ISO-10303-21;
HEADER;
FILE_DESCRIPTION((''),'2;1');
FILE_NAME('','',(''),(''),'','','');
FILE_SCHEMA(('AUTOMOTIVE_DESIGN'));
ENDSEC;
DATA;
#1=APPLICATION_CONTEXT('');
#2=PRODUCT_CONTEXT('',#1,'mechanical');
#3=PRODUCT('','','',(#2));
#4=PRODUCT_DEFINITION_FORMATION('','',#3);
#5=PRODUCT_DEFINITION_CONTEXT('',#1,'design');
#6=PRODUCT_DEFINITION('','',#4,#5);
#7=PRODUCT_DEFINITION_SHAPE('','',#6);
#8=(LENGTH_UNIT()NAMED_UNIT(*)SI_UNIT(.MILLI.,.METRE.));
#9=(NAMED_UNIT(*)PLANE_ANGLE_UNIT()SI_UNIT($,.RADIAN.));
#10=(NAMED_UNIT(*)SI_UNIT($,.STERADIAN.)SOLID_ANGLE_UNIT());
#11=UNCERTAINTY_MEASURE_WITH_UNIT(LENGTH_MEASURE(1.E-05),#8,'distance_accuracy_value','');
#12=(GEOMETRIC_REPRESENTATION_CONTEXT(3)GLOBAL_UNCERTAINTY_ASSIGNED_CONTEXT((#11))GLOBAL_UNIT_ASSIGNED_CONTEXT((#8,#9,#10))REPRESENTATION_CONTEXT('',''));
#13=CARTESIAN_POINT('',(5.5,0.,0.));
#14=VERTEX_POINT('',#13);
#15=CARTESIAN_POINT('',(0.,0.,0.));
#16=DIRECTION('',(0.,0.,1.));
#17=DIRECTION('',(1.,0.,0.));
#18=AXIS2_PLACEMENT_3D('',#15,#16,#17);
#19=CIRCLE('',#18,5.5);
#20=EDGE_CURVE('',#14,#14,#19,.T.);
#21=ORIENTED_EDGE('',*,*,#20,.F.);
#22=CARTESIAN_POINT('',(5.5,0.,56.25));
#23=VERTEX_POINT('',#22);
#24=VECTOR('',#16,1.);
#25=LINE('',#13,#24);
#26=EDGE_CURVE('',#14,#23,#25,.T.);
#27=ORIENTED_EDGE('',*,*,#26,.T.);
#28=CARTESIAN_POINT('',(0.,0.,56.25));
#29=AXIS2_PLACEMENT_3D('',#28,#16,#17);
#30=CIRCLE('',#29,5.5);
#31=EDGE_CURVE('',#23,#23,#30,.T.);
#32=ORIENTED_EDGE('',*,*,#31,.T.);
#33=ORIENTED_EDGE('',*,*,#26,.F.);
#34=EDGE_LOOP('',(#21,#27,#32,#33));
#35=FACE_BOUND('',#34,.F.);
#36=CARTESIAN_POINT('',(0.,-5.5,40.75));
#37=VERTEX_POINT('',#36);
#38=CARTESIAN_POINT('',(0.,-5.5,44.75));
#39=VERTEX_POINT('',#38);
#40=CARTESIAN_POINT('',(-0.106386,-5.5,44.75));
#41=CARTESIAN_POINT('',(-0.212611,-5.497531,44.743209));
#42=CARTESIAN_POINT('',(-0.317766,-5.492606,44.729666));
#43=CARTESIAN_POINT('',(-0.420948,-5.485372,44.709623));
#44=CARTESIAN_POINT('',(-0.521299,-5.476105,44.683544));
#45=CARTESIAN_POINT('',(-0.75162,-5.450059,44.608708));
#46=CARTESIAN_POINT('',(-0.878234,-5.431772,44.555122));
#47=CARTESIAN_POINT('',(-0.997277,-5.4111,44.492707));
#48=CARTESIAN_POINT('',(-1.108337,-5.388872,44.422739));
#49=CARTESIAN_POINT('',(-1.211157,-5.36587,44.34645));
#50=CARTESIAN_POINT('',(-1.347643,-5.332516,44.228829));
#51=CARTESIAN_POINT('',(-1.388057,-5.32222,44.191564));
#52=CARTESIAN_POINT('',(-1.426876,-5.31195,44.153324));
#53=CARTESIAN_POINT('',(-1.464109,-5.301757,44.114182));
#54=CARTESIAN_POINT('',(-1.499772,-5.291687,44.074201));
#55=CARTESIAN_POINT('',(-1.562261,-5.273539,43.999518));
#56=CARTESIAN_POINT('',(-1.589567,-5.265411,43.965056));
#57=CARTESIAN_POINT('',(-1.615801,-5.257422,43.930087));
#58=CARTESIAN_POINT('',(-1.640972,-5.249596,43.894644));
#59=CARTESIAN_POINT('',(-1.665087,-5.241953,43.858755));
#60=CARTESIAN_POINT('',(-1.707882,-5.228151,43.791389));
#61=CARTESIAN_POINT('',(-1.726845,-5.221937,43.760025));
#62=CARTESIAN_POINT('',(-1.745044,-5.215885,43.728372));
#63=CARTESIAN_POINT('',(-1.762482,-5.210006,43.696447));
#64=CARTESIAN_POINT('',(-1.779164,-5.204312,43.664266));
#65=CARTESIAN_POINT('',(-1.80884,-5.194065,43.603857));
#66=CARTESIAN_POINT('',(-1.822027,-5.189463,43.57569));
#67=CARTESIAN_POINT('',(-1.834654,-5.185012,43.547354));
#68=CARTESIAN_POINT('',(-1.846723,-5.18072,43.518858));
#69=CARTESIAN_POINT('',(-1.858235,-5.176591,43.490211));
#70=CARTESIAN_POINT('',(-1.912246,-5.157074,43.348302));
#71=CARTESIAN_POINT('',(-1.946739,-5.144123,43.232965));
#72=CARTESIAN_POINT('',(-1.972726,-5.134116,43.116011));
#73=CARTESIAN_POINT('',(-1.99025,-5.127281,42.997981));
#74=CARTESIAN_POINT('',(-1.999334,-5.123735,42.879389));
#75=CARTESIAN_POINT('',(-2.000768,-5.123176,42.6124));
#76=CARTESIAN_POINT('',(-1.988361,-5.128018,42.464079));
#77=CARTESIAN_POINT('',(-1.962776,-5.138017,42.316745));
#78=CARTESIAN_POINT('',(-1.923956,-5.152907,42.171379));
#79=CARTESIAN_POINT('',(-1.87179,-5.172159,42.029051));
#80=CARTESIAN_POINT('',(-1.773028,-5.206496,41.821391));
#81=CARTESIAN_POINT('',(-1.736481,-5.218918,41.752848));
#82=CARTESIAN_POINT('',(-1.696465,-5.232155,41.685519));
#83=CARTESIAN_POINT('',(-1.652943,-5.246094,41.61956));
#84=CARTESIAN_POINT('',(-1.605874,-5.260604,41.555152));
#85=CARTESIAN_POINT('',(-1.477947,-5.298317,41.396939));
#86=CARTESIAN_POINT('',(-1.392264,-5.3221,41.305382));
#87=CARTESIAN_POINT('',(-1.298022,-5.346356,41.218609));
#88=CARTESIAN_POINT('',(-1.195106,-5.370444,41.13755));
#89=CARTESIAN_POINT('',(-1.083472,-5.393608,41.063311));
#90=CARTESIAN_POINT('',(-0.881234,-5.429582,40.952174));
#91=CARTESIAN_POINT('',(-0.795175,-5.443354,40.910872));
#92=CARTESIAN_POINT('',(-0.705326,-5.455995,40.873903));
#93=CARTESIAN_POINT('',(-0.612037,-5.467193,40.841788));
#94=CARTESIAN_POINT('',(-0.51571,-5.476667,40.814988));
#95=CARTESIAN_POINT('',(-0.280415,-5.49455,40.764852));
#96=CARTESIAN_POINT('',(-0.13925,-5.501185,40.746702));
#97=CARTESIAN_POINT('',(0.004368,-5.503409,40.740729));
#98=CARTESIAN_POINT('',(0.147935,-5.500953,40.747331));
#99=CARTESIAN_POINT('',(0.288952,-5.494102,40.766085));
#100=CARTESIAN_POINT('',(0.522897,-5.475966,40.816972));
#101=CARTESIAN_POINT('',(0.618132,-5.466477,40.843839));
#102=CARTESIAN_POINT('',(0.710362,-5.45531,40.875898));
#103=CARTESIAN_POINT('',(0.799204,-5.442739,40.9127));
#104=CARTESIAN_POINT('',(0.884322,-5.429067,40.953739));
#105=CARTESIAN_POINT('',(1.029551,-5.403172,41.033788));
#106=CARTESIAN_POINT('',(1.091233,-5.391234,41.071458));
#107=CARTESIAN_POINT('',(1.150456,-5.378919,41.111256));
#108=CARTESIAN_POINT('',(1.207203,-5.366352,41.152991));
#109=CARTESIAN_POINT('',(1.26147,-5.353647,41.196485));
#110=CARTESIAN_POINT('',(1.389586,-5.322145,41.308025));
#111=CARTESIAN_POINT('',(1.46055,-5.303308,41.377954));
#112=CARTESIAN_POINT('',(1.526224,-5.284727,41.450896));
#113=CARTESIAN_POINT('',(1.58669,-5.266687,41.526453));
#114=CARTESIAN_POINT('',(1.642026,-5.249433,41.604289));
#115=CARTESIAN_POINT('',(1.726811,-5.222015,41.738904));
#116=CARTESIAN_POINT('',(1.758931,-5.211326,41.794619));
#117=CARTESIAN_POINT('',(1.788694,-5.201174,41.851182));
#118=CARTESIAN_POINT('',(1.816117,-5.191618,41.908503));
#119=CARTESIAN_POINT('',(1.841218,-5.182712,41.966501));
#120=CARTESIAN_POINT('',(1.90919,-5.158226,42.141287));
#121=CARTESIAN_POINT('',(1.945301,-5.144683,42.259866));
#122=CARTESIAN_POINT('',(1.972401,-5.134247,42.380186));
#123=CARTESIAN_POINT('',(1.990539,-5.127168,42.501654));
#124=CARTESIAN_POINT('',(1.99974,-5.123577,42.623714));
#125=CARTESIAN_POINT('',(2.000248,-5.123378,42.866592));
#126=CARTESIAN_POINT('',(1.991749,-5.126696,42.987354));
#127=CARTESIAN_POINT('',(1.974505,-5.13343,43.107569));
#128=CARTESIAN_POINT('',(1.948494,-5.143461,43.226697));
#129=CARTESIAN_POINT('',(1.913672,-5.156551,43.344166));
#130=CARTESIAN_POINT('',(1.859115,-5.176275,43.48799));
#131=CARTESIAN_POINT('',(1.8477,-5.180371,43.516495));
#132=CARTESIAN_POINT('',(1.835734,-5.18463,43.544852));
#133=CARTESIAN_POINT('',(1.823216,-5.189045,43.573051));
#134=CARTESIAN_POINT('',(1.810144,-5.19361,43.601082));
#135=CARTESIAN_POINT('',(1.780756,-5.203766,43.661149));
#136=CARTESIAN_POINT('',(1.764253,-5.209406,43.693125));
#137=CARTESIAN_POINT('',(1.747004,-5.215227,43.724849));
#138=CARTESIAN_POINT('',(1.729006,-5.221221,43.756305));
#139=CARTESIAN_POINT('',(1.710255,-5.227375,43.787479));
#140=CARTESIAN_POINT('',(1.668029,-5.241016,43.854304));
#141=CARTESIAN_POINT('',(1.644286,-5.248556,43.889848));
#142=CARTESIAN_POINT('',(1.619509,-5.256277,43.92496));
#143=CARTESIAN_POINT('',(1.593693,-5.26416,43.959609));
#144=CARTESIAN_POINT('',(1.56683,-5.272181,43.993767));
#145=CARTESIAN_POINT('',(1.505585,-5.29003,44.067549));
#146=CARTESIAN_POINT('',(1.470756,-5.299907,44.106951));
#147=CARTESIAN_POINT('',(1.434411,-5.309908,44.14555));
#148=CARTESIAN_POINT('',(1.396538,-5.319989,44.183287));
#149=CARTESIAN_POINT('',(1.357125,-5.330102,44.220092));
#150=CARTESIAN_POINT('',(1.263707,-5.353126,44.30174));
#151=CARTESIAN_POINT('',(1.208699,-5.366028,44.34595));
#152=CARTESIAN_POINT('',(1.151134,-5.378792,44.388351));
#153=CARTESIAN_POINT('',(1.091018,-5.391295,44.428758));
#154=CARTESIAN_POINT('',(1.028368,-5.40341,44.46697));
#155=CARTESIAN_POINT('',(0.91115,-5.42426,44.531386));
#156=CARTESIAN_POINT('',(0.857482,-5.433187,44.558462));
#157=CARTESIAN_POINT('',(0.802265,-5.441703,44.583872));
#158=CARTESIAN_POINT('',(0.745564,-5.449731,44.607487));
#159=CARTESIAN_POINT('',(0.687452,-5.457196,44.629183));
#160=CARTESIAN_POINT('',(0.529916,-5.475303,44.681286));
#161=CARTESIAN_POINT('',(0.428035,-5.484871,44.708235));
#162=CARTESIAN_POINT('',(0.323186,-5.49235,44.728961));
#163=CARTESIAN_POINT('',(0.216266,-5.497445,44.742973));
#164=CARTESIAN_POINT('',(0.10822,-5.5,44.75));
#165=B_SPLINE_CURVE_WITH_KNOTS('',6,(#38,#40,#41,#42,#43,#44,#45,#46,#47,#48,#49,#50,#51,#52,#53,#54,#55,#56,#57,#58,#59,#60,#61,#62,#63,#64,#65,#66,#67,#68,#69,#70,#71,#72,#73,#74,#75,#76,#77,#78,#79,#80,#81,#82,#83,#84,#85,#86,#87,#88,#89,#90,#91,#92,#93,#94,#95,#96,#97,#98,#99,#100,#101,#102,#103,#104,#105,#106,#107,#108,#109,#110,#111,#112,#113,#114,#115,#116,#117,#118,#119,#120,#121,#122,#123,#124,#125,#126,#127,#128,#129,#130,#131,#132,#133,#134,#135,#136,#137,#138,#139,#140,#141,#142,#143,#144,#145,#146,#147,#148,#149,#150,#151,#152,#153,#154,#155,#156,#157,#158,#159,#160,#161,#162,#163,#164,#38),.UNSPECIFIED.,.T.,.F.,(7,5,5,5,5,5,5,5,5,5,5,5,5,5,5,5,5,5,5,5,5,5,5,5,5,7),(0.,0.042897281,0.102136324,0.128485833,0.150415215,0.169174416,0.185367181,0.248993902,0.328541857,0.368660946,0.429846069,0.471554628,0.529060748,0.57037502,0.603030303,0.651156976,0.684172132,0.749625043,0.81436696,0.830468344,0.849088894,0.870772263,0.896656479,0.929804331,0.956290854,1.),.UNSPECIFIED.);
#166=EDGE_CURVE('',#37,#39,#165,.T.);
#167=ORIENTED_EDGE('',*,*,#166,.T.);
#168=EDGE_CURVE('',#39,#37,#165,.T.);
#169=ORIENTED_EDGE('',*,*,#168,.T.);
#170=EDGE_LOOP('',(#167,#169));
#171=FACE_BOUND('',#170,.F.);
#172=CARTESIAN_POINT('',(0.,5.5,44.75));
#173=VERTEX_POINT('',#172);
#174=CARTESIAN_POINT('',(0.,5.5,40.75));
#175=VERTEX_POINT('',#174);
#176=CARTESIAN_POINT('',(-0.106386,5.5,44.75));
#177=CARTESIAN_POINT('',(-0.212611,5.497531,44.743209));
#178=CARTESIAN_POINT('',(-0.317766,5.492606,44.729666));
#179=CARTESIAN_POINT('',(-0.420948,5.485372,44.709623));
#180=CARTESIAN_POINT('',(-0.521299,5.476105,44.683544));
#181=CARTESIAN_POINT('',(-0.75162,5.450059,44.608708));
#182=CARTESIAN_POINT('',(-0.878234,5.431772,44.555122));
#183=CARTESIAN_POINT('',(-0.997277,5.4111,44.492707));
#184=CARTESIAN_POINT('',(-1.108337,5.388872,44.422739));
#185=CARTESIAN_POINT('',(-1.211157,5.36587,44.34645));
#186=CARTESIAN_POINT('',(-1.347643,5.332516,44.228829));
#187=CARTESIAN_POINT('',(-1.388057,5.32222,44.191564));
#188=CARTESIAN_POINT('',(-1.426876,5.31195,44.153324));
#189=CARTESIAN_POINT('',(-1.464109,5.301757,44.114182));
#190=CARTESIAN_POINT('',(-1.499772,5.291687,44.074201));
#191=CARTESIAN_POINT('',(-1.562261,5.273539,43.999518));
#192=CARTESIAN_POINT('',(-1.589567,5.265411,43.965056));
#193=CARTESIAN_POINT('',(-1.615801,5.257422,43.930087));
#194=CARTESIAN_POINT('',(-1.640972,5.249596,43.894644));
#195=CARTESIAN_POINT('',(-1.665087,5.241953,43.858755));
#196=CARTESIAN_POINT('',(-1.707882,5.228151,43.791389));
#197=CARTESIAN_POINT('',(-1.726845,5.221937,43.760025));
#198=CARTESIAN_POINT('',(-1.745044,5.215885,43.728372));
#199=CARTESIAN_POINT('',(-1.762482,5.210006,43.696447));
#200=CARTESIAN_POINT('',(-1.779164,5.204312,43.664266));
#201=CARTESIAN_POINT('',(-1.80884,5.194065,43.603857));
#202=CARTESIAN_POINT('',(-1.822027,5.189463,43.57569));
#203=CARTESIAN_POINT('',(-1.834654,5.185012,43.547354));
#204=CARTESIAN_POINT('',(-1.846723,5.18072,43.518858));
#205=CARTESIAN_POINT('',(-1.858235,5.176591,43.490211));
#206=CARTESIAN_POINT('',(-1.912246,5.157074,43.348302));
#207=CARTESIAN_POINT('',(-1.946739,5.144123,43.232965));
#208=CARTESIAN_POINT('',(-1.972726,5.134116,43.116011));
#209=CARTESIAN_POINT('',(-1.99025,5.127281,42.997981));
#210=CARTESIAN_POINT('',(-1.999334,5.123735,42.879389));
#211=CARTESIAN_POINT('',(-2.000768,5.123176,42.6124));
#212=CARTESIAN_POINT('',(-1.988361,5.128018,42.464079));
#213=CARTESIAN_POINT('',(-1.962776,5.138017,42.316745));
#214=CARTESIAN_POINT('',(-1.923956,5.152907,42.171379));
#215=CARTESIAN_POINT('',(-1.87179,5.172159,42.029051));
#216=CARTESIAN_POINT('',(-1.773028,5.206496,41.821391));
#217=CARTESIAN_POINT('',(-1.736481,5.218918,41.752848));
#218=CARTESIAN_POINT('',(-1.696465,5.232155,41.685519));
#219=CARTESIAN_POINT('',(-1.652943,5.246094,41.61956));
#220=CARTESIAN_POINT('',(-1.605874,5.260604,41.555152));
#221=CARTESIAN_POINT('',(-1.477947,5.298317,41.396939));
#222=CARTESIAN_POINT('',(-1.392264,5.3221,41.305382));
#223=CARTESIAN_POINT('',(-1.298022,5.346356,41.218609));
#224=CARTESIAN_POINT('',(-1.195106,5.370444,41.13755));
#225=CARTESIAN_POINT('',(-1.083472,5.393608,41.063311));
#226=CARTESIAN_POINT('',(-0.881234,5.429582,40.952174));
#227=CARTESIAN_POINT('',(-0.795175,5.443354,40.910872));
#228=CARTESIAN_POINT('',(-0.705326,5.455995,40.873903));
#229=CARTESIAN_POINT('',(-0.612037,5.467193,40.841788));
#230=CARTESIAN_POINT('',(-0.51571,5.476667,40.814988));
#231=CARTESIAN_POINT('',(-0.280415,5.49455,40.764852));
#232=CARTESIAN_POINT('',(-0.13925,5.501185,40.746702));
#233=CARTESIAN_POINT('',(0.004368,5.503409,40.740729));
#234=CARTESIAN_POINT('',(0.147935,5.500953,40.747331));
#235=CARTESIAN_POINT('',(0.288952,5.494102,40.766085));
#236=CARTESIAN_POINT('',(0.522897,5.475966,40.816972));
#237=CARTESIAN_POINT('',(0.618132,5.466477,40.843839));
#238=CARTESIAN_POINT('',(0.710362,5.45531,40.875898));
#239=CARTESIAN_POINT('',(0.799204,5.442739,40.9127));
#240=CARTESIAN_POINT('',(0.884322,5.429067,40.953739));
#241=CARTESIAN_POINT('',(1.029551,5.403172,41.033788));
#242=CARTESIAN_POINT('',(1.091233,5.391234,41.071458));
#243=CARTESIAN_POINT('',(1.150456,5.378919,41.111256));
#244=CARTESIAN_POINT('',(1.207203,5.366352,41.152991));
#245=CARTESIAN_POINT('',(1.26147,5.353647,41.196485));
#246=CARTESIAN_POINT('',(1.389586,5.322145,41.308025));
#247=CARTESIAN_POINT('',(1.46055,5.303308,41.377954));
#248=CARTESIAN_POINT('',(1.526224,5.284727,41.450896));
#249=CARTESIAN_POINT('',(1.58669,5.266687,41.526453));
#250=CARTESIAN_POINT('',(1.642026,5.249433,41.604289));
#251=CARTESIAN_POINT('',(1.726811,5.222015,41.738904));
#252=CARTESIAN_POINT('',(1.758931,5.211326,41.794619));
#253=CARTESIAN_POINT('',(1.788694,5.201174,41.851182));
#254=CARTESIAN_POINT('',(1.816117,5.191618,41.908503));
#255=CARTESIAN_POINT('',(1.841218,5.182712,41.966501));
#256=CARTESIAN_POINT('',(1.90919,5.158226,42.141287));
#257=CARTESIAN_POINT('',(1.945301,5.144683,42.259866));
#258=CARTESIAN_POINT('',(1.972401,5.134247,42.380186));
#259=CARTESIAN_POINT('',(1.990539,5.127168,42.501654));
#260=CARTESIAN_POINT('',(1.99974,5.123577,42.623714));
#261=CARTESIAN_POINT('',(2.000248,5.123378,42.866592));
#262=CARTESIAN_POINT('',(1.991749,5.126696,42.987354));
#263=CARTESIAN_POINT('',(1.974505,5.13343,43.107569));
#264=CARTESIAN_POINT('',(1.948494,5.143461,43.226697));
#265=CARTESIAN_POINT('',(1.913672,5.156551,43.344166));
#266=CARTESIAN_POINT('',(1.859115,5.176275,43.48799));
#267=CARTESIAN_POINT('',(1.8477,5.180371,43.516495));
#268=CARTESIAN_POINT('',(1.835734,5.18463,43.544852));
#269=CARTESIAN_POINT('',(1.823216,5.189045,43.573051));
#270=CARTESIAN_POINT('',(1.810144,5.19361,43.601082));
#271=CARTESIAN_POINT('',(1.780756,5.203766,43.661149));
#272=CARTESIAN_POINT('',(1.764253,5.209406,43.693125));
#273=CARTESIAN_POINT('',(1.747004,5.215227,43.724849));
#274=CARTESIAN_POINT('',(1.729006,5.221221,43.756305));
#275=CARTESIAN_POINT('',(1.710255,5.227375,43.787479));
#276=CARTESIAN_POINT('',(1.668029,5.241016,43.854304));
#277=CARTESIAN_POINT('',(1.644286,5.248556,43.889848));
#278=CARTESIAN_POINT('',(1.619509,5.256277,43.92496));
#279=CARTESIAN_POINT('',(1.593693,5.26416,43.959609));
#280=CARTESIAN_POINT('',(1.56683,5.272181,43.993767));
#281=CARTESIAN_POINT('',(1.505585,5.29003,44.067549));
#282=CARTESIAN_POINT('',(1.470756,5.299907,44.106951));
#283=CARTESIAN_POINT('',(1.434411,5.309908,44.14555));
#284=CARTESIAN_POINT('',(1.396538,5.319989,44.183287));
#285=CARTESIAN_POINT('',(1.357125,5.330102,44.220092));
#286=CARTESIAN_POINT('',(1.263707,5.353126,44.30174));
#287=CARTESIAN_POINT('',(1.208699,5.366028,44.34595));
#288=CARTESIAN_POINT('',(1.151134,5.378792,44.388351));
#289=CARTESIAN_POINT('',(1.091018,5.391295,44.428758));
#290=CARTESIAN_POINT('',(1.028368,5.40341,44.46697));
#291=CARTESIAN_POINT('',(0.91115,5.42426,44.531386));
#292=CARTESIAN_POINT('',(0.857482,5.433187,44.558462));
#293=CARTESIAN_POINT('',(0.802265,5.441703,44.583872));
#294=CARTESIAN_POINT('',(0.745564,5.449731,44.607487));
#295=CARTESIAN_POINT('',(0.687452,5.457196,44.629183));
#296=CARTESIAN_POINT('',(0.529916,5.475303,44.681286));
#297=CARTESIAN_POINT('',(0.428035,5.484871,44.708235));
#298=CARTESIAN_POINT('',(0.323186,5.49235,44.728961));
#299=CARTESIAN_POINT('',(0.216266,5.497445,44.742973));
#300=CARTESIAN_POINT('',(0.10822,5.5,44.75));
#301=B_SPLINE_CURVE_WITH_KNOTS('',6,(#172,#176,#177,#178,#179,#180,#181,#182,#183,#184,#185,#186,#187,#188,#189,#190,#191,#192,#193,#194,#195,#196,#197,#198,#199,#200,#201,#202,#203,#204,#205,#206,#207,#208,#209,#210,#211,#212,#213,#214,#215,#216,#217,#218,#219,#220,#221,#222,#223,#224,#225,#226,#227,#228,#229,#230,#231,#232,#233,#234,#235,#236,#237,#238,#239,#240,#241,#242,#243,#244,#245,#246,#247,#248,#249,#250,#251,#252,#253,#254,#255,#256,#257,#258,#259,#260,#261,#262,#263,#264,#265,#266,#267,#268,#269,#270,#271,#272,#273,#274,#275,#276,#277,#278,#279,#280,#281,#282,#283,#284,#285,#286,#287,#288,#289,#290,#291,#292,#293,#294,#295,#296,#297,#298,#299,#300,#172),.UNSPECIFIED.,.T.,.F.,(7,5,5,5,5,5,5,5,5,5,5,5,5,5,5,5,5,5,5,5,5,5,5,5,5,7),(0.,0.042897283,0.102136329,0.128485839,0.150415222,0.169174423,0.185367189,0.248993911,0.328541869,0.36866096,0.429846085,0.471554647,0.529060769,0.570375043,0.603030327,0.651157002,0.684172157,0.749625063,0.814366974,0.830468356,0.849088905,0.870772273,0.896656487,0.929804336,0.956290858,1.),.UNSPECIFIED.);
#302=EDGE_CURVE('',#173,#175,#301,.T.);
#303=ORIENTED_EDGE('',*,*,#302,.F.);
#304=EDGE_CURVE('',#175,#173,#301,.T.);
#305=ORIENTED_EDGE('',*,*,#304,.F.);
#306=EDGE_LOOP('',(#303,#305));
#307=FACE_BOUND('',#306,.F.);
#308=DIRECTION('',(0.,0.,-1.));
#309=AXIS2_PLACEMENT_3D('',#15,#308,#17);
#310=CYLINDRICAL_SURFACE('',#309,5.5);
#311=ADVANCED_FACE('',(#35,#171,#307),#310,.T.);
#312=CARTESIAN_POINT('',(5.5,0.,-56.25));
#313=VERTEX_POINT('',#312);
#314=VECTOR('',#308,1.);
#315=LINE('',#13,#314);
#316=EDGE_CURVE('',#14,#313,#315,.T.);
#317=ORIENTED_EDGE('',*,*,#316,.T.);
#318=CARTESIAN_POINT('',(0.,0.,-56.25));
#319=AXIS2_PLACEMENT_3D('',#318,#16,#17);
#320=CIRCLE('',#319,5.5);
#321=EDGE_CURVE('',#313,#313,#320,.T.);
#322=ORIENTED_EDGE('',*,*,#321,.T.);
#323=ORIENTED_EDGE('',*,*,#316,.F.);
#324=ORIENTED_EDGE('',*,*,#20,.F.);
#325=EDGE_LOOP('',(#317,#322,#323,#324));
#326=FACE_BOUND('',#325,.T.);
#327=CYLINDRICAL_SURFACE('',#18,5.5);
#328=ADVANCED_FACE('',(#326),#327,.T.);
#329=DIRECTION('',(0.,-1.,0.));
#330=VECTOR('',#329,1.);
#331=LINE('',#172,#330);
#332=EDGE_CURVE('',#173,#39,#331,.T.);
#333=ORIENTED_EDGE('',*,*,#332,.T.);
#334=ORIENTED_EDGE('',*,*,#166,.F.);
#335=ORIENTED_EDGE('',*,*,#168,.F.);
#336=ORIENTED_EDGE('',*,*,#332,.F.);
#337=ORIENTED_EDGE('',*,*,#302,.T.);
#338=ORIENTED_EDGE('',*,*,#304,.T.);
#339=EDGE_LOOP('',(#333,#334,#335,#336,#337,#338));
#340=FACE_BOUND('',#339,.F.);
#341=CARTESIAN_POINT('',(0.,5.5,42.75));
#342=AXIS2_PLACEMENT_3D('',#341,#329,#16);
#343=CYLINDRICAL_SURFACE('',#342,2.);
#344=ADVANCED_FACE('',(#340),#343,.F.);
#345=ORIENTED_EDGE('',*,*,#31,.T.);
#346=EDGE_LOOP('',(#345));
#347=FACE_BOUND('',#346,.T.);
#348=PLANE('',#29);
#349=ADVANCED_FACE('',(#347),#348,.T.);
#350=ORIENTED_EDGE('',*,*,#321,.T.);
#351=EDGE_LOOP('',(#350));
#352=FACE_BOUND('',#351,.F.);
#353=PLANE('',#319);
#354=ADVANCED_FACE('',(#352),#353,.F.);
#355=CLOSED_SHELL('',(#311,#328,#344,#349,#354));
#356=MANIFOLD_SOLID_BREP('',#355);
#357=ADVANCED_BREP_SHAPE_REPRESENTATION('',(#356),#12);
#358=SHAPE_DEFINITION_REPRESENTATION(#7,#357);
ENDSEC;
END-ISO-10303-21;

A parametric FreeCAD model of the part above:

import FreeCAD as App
import Part
import Sketcher
Q = App.Units.Quantity


def add_polygon(sketch, points):
    """Adds a closed chain of lines whose ends are joined by coincident constraints."""
    first, n = sketch.GeometryCount, len(points)
    for a, b in zip(points, points[1:] + points[:1]):
        sketch.addGeometry(Part.LineSegment(App.Vector(*a, 0), App.Vector(*b, 0)), False)
    for i in range(n):
        sketch.addConstraint(Sketcher.Constraint("Coincident", first + i, 2, first + (i + 1) % n, 1))

doc = App.newDocument("Part")
params = doc.addObject("Spreadsheet::Sheet", "Params")
for row, (alias, value) in enumerate([
    ("sketch1_diameter", "11 mm"),
    ("pad1_length", "112.5 mm"),
    ("sketch2_width", "11 mm"),
    ("sketch2_height", "2 mm"),
    ("groove_angle", "360 deg"),
], start=1):
    params.set(f"A{row}", alias)
    params.set(f"B{row}", "=" + value)
    params.setAlias(f"B{row}", alias)

body = doc.addObject("PartDesign::Body", "Body")

# Sketch on XY plane
sketch1 = body.newObject("Sketcher::SketchObject", "Sketch")
sketch1.AttachmentSupport = (doc.getObject("XY_Plane"), [""])
sketch1.MapMode = "FlatFace"
sketch1.addGeometry(Part.Circle(App.Vector(0, 0, 0), App.Vector(0, 0, 1), 5.5), False)
sketch1.addConstraint(Sketcher.Constraint("Coincident", 0, 3, -1, 1))
sketch1.addConstraint(Sketcher.Constraint("Diameter", 0, Q("11 mm")))
sketch1.setExpression("Constraints[1]", "Params.sketch1_diameter")
pad1 = body.newObject("PartDesign::Pad", "Pad")
pad1.Profile = sketch1
pad1.setExpression("Length", "Params.pad1_length")
pad1.Midplane = True

# Sketch on YZ plane
sketch2 = body.newObject("Sketcher::SketchObject", "Sketch001")
sketch2.AttachmentSupport = (doc.getObject("YZ_Plane"), [""])
sketch2.MapMode = "FlatFace"
add_polygon(sketch2, [(-5.5, 42.75), (5.5, 42.75), (5.5, 44.75), (-5.5, 44.75)])  # lines 0-3
sketch2.addGeometry(Part.LineSegment(App.Vector(5.5, 42.75, 0), App.Vector(-5.5, 42.75, 0)), True)  # axis
sketch2.addConstraint(Sketcher.Constraint("Horizontal", 0))
sketch2.addConstraint(Sketcher.Constraint("Vertical", 1))
sketch2.addConstraint(Sketcher.Constraint("Horizontal", 2))
sketch2.addConstraint(Sketcher.Constraint("Vertical", 3))
sketch2.addConstraint(Sketcher.Constraint("Horizontal", 4))
sketch2.addConstraint(Sketcher.Constraint("Coincident", 4, 1, 0, 2))
sketch2.addConstraint(Sketcher.Constraint("Vertical", 2, 2, 4, 2))
sketch2.addConstraint(Sketcher.Constraint("DistanceX", 0, 1, 0, 2, Q("11 mm")))
sketch2.addConstraint(Sketcher.Constraint("DistanceY", 1, 1, 1, 2, Q("2 mm")))
sketch2.addConstraint(Sketcher.Constraint("DistanceX", -1, 1, 0, 2, Q("5.5 mm")))
sketch2.addConstraint(Sketcher.Constraint("DistanceY", -1, 1, 0, 2, Q("42.75 mm")))
sketch2.setExpression("Constraints[11]", "Params.sketch2_width")
sketch2.setExpression("Constraints[12]", "Params.sketch2_height")
groove = body.newObject("PartDesign::Groove", "Groove")
groove.Profile = sketch2
groove.ReferenceAxis = (sketch2, ["Axis0"])
groove.setExpression("Angle", "Params.groove_angle")

doc.recompute()
